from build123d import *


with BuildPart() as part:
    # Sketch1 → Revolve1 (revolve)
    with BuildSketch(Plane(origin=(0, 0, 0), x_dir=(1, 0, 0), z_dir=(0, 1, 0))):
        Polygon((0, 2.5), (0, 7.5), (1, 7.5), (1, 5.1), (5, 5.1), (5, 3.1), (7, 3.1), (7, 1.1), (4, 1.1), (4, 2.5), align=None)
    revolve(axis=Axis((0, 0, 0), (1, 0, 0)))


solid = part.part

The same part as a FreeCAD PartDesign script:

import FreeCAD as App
import Part
import Sketcher
from FreeCAD import Vector

doc = App.newDocument("Part")
body = doc.addObject("PartDesign::Body", "Body")

sketch1 = doc.addObject("Sketcher::SketchObject", "Sketch")
body.addObject(sketch1)
sketch1.AttachmentSupport = (doc.XZ_Plane, [""])
sketch1.MapMode = "FlatFace"
sketch1.addGeometry([
    Part.LineSegment(Vector(0, -7.5, 0), Vector(0, -2.5, 0)),
    Part.LineSegment(Vector(0, -2.5, 0), Vector(4, -2.5, 0)),
    Part.LineSegment(Vector(4, -2.5, 0), Vector(4, -1.1, 0)),
    Part.LineSegment(Vector(4, -1.1, 0), Vector(7, -1.1, 0)),
    Part.LineSegment(Vector(7, -1.1, 0), Vector(7, -3.1, 0)),
    Part.LineSegment(Vector(7, -3.1, 0), Vector(5, -3.1, 0)),
    Part.LineSegment(Vector(5, -3.1, 0), Vector(5, -5.1, 0)),
    Part.LineSegment(Vector(5, -5.1, 0), Vector(1, -5.1, 0)),
    Part.LineSegment(Vector(1, -5.1, 0), Vector(1, -7.5, 0)),
    Part.LineSegment(Vector(1, -7.5, 0), Vector(0, -7.5, 0)),
], False)
sketch1.addConstraint([
    Sketcher.Constraint("Coincident", 0, 2, 1, 1),
    Sketcher.Constraint("Coincident", 1, 2, 2, 1),
    Sketcher.Constraint("Coincident", 2, 2, 3, 1),
    Sketcher.Constraint("Coincident", 3, 2, 4, 1),
    Sketcher.Constraint("Coincident", 4, 2, 5, 1),
    Sketcher.Constraint("Coincident", 5, 2, 6, 1),
    Sketcher.Constraint("Coincident", 6, 2, 7, 1),
    Sketcher.Constraint("Coincident", 7, 2, 8, 1),
    Sketcher.Constraint("Coincident", 8, 2, 9, 1),
    Sketcher.Constraint("Coincident", 9, 2, 0, 1),
    Sketcher.Constraint("Vertical", 0),
    Sketcher.Constraint("Horizontal", 1),
    Sketcher.Constraint("Vertical", 2),
    Sketcher.Constraint("Horizontal", 3),
    Sketcher.Constraint("Vertical", 4),
    Sketcher.Constraint("Horizontal", 5),
    Sketcher.Constraint("Vertical", 6),
    Sketcher.Constraint("Horizontal", 7),
    Sketcher.Constraint("Vertical", 8),
    Sketcher.Constraint("Horizontal", 9),
    Sketcher.Constraint("PointOnObject", 0, 2, -2),
    Sketcher.Constraint("Equal", 1, 7),
    Sketcher.Constraint("Equal", 5, 4),
    Sketcher.Constraint("Equal", 4, 6),
    Sketcher.Constraint("DistanceX", 1, 1, 1, 2, 4.0),
    Sketcher.Constraint("DistanceX", 3, 1, 3, 2, 3.0),
    Sketcher.Constraint("DistanceX", 5, 2, 5, 1, 2.0),
    Sketcher.Constraint("DistanceY", 0, 1, 0, 2, 5.0),
    Sketcher.Constraint("DistanceY", 2, 1, 2, 2, 1.4),
    Sketcher.Constraint("DistanceY", 0, 2, -1, 1, 2.5),
])
revolution = doc.addObject("PartDesign::Revolution", "Revolution")
body.addObject(revolution)
revolution.Profile = sketch1
revolution.ReferenceAxis = (sketch1, ["H_Axis"])
revolution.Angle = 360

doc.recompute()
